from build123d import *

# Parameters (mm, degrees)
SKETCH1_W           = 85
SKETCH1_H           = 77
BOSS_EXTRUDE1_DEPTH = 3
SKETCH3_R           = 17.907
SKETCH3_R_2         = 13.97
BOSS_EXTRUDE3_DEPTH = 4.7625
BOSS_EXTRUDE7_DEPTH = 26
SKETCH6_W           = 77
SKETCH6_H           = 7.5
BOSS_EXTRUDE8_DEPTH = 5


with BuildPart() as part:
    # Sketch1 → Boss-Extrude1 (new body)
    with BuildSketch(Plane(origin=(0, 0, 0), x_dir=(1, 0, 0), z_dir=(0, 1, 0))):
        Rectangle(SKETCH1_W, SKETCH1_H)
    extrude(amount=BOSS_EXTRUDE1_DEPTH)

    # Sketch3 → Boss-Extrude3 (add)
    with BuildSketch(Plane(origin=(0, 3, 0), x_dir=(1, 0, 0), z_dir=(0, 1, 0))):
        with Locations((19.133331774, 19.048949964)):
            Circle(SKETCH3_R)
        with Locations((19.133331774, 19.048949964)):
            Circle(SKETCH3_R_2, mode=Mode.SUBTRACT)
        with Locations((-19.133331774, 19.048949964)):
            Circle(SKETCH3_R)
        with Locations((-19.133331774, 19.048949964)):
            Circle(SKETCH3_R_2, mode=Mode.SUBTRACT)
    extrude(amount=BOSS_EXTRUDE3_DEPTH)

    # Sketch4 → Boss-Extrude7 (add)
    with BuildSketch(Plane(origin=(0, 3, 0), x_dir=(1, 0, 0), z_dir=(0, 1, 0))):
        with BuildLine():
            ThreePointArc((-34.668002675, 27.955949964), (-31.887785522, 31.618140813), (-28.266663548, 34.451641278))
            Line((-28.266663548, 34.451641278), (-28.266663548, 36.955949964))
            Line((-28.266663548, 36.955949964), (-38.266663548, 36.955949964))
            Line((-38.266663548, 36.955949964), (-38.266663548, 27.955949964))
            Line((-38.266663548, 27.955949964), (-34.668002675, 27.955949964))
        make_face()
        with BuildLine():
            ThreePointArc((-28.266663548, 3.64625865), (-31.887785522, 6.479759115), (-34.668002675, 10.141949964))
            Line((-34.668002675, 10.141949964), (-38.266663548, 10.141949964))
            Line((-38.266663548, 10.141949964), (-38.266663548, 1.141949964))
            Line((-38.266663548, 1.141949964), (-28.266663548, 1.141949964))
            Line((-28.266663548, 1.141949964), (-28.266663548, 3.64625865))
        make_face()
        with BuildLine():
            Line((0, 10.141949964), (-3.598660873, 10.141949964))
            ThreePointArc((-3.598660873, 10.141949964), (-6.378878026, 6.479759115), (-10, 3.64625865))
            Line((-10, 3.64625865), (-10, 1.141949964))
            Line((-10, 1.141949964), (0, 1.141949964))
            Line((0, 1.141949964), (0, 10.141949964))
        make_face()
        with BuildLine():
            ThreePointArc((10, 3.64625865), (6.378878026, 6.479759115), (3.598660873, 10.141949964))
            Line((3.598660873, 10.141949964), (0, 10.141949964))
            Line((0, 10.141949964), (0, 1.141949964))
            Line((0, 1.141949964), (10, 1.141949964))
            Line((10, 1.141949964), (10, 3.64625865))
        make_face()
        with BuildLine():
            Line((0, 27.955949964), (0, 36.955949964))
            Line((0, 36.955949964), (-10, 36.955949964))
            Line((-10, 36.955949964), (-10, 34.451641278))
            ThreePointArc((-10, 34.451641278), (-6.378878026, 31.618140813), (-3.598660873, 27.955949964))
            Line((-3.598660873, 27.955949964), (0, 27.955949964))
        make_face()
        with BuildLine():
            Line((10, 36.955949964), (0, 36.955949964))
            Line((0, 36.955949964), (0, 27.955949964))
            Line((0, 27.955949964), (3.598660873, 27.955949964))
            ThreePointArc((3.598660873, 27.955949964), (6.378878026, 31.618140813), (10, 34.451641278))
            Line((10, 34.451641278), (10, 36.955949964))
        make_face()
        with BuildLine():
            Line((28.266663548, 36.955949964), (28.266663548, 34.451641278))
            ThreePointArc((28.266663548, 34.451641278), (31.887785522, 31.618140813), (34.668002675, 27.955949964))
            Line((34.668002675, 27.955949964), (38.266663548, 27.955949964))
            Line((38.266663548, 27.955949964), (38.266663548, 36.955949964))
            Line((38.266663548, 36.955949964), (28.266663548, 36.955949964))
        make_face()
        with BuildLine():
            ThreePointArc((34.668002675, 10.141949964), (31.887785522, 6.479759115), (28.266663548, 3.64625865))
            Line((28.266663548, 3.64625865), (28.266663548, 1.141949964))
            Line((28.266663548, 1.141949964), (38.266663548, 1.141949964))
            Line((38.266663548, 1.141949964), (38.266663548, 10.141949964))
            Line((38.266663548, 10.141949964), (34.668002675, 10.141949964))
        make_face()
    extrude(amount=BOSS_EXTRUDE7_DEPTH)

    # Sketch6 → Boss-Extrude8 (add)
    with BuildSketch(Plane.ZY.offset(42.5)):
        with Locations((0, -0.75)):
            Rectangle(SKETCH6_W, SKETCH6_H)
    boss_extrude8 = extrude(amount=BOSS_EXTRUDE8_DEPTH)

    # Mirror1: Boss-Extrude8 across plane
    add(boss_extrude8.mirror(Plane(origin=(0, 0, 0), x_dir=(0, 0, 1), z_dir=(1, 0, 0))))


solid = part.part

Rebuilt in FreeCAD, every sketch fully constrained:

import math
import FreeCAD as App
import Part
import Sketcher

V = App.Vector
Q = App.Units.Quantity

doc = App.newDocument("Part")
body = doc.addObject("PartDesign::Body", "Body")

sketch1 = body.newObject("Sketcher::SketchObject", "Sketch")
sketch1.AttachmentSupport = (doc.getObject("XZ_Plane"), [""])
sketch1.MapMode = "FlatFace"
sketch1.addGeometry([
    Part.LineSegment(V(-42, -38, 0), V(-42, 38, 0)),
    Part.LineSegment(V(-42, 38, 0), V(42, 38, 0)),
    Part.LineSegment(V(42, 38, 0), V(42, -38, 0)),
    Part.LineSegment(V(42, -38, 0), V(-42, -38, 0)),
], False)
sketch1.addConstraint([
    Sketcher.Constraint("Coincident", 0, 2, 1, 1),
    Sketcher.Constraint("Coincident", 1, 2, 2, 1),
    Sketcher.Constraint("Coincident", 2, 2, 3, 1),
    Sketcher.Constraint("Coincident", 3, 2, 0, 1),
    Sketcher.Constraint("Vertical", 0),
    Sketcher.Constraint("Horizontal", 1),
    Sketcher.Constraint("Vertical", 2),
    Sketcher.Constraint("Horizontal", 3),
    Sketcher.Constraint("Symmetric", 0, 2, 2, 2, -1, 1),
    Sketcher.Constraint("DistanceX", 1, 1, 1, 2, Q("85 mm")),
    Sketcher.Constraint("DistanceY", 0, 1, 0, 2, Q("77 mm")),
])
pad1 = body.newObject("PartDesign::Pad", "Pad")
pad1.Profile = sketch1
pad1.Length = 3
pad1.Reversed = True

sketch2 = body.newObject("Sketcher::SketchObject", "Sketch001")
sketch2.AttachmentSupport = (doc.getObject("XZ_Plane"), [""])
sketch2.MapMode = "FlatFace"
sketch2.AttachmentOffset = App.Placement(V(0, 0, -3), App.Rotation())
sketch2.addGeometry([
    Part.Circle(V(19, -19, 0), V(0, 0, 1), 18),
    Part.Circle(V(19, -19, 0), V(0, 0, 1), 14),
    Part.Circle(V(-19, -19, 0), V(0, 0, 1), 18),
    Part.Circle(V(-19, -19, 0), V(0, 0, 1), 14),
], False)
sketch2.addConstraint([
    Sketcher.Constraint("Coincident", 1, 3, 0, 3),
    Sketcher.Constraint("Coincident", 3, 3, 2, 3),
    Sketcher.Constraint("Equal", 0, 2),
    Sketcher.Constraint("Equal", 1, 3),
    Sketcher.Constraint("Symmetric", 0, 3, 2, 3, -2),
    Sketcher.Constraint("Diameter", 1, Q("27.94 mm")),
    Sketcher.Constraint("Diameter", 0, Q("35.814 mm")),
    Sketcher.Constraint("DistanceX", -1, 1, 0, 3, Q("19.133332 mm")),
    Sketcher.Constraint("DistanceY", 0, 3, -1, 1, Q("19.04895 mm")),
])
pad2 = body.newObject("PartDesign::Pad", "Pad001")
pad2.Profile = sketch2
pad2.Length = 4.7625
pad2.Reversed = True

sketch3 = body.newObject("Sketcher::SketchObject", "Sketch002")
sketch3.AttachmentSupport = (doc.getObject("XZ_Plane"), [""])
sketch3.MapMode = "FlatFace"
sketch3.AttachmentOffset = App.Placement(V(0, 0, -3), App.Rotation())
sketch3.addGeometry([
    Part.ArcOfCircle(Part.Circle(V(-19.1, -19, 0), V(0, 0, 1), 17.9), math.radians(-150), math.radians(-121)),
    Part.LineSegment(V(-28.3, -34.5, 0), V(-28.3, -37, 0)),
    Part.LineSegment(V(-28.3, -37, 0), V(-38.3, -37, 0)),
    Part.LineSegment(V(-38.3, -37, 0), V(-38.3, -28, 0)),
    Part.LineSegment(V(-38.3, -28, 0), V(-34.7, -28, 0)),
    Part.ArcOfCircle(Part.Circle(V(-19.1, -19, 0), V(0, 0, 1), 17.9), math.radians(121), math.radians(150)),
    Part.LineSegment(V(-34.7, -10.1, 0), V(-38.3, -10.1, 0)),
    Part.LineSegment(V(-38.3, -10.1, 0), V(-38.3, -1.1, 0)),
    Part.LineSegment(V(-38.3, -1.1, 0), V(-28.3, -1.1, 0)),
    Part.LineSegment(V(-28.3, -1.1, 0), V(-28.3, -3.6, 0)),
    Part.ArcOfCircle(Part.Circle(V(-19.1, -19, 0), V(0, 0, 1), 17.9), math.radians(30), math.radians(59)),
    Part.LineSegment(V(-10, -3.6, 0), V(-10, -1.1, 0)),
    Part.LineSegment(V(-10, -1.1, 0), V(10, -1.1, 0)),
    Part.LineSegment(V(10, -1.1, 0), V(10, -3.6, 0)),
    Part.ArcOfCircle(Part.Circle(V(19.1, -19, 0), V(0, 0, 1), 17.9), math.radians(121), math.radians(150)),
    Part.LineSegment(V(3.6, -10.1, 0), V(-3.6, -10.1, 0)),
    Part.LineSegment(V(-10, -37, 0), V(-10, -34.5, 0)),
    Part.ArcOfCircle(Part.Circle(V(-19.1, -19, 0), V(0, 0, 1), 17.9), math.radians(-59), math.radians(-30)),
    Part.LineSegment(V(-3.6, -28, 0), V(3.6, -28, 0)),
    Part.ArcOfCircle(Part.Circle(V(19.1, -19, 0), V(0, 0, 1), 17.9), math.radians(-150), math.radians(-121)),
    Part.LineSegment(V(10, -34.5, 0), V(10, -37, 0)),
    Part.LineSegment(V(10, -37, 0), V(-10, -37, 0)),
    Part.LineSegment(V(28.3, -37, 0), V(28.3, -34.5, 0)),
    Part.ArcOfCircle(Part.Circle(V(19.1, -19, 0), V(0, 0, 1), 17.9), math.radians(-59), math.radians(-30)),
    Part.LineSegment(V(34.7, -28, 0), V(38.3, -28, 0)),
    Part.LineSegment(V(38.3, -28, 0), V(38.3, -37, 0)),
    Part.LineSegment(V(38.3, -37, 0), V(28.3, -37, 0)),
    Part.ArcOfCircle(Part.Circle(V(19.1, -19, 0), V(0, 0, 1), 17.9), math.radians(30), math.radians(59)),
    Part.LineSegment(V(28.3, -3.6, 0), V(28.3, -1.1, 0)),
    Part.LineSegment(V(28.3, -1.1, 0), V(38.3, -1.1, 0)),
    Part.LineSegment(V(38.3, -1.1, 0), V(38.3, -10.1, 0)),
    Part.LineSegment(V(38.3, -10.1, 0), V(34.7, -10.1, 0)),
], False)
sketch3.addConstraint([
    Sketcher.Constraint("Coincident", 0, 2, 1, 1),
    Sketcher.Constraint("Coincident", 1, 2, 2, 1),
    Sketcher.Constraint("Coincident", 2, 2, 3, 1),
    Sketcher.Constraint("Coincident", 3, 2, 4, 1),
    Sketcher.Constraint("Coincident", 4, 2, 0, 1),
    Sketcher.Constraint("Coincident", 5, 2, 6, 1),
    Sketcher.Constraint("Coincident", 6, 2, 7, 1),
    Sketcher.Constraint("Coincident", 7, 2, 8, 1),
    Sketcher.Constraint("Coincident", 8, 2, 9, 1),
    Sketcher.Constraint("Coincident", 9, 2, 5, 1),
    Sketcher.Constraint("Coincident", 10, 2, 11, 1),
    Sketcher.Constraint("Coincident", 11, 2, 12, 1),
    Sketcher.Constraint("Coincident", 12, 2, 13, 1),
    Sketcher.Constraint("Coincident", 13, 2, 14, 1),
    Sketcher.Constraint("Coincident", 14, 2, 15, 1),
    Sketcher.Constraint("Coincident", 15, 2, 10, 1),
    Sketcher.Constraint("Coincident", 16, 2, 17, 1),
    Sketcher.Constraint("Coincident", 17, 2, 18, 1),
    Sketcher.Constraint("Coincident", 18, 2, 19, 1),
    Sketcher.Constraint("Coincident", 19, 2, 20, 1),
    Sketcher.Constraint("Coincident", 20, 2, 21, 1),
    Sketcher.Constraint("Coincident", 21, 2, 16, 1),
    Sketcher.Constraint("Coincident", 22, 2, 23, 1),
    Sketcher.Constraint("Coincident", 23, 2, 24, 1),
    Sketcher.Constraint("Coincident", 24, 2, 25, 1),
    Sketcher.Constraint("Coincident", 25, 2, 26, 1),
    Sketcher.Constraint("Coincident", 26, 2, 22, 1),
    Sketcher.Constraint("Coincident", 27, 2, 28, 1),
    Sketcher.Constraint("Coincident", 28, 2, 29, 1),
    Sketcher.Constraint("Coincident", 29, 2, 30, 1),
    Sketcher.Constraint("Coincident", 30, 2, 31, 1),
    Sketcher.Constraint("Coincident", 31, 2, 27, 1),
    Sketcher.Constraint("Vertical", 1),
    Sketcher.Constraint("Horizontal", 2),
    Sketcher.Constraint("Vertical", 3),
    Sketcher.Constraint("Horizontal", 4),
    Sketcher.Constraint("Horizontal", 6),
    Sketcher.Constraint("Vertical", 7),
    Sketcher.Constraint("Horizontal", 8),
    Sketcher.Constraint("Vertical", 9),
    Sketcher.Constraint("Vertical", 11),
    Sketcher.Constraint("Horizontal", 12),
    Sketcher.Constraint("Vertical", 13),
    Sketcher.Constraint("Horizontal", 15),
    Sketcher.Constraint("Vertical", 16),
    Sketcher.Constraint("Horizontal", 18),
    Sketcher.Constraint("Vertical", 20),
    Sketcher.Constraint("Horizontal", 21),
    Sketcher.Constraint("Vertical", 22),
    Sketcher.Constraint("Horizontal", 24),
    Sketcher.Constraint("Vertical", 25),
    Sketcher.Constraint("Horizontal", 26),
    Sketcher.Constraint("Vertical", 28),
    Sketcher.Constraint("Horizontal", 29),
    Sketcher.Constraint("Vertical", 30),
    Sketcher.Constraint("Horizontal", 31),
    Sketcher.Constraint("Coincident", 5, 3, 0, 3),
    Sketcher.Constraint("Coincident", 10, 3, 0, 3),
    Sketcher.Constraint("Coincident", 17, 3, 0, 3),
    Sketcher.Constraint("Coincident", 19, 3, 14, 3),
    Sketcher.Constraint("Coincident", 23, 3, 14, 3),
    Sketcher.Constraint("Coincident", 27, 3, 14, 3),
    Sketcher.Constraint("Equal", 0, 5),
    Sketcher.Constraint("Equal", 5, 10),
    Sketcher.Constraint("Equal", 10, 14),
    Sketcher.Constraint("Equal", 14, 17),
    Sketcher.Constraint("Equal", 17, 19),
    Sketcher.Constraint("Equal", 19, 23),
    Sketcher.Constraint("Equal", 23, 27),
    Sketcher.Constraint("Symmetric", 0, 3, 14, 3, -2),
    Sketcher.Constraint("Symmetric", 3, 2, 24, 2, -2),
    Sketcher.Constraint("Symmetric", 1, 2, 26, 2, -2),
    Sketcher.Constraint("Symmetric", 8, 2, 28, 2, -2),
    Sketcher.Constraint("Symmetric", 6, 2, 30, 2, -2),
    Sketcher.Constraint("Horizontal", 9, 2, 10, 2),
    Sketcher.Constraint("Horizontal", 8, 2, 11, 2),
    Sketcher.Constraint("Horizontal", 10, 2, 13, 2),
    Sketcher.Constraint("Horizontal", 6, 2, 14, 2),
    Sketcher.Constraint("Horizontal", 0, 2, 16, 2),
    Sketcher.Constraint("Horizontal", 4, 2, 17, 2),
    Sketcher.Constraint("Horizontal", 16, 2, 19, 2),
    Sketcher.Constraint("Horizontal", 2, 2, 20, 2),
    Sketcher.Constraint("Vertical", 4, 2, 5, 2),
    Sketcher.Constraint("Vertical", 3, 2, 6, 2),
    Sketcher.Constraint("Vertical", 1, 2, 8, 2),
    Sketcher.Constraint("Equal", 3, 7),
    Sketcher.Constraint("DistanceX", 2, 2, 2, 1, Q("10 mm")),
    Sketcher.Constraint("DistanceX", 12, 1, 12, 2, Q("20 mm")),
    Sketcher.Constraint("DistanceY", 3, 1, 3, 2, Q("9 mm")),
    Sketcher.Constraint("Radius", 0, Q("17.907 mm")),
    Sketcher.Constraint("DistanceY", 1, 2, 0, 3, Q("17.907 mm")),
    Sketcher.Constraint("DistanceX", 4, 1, 4, 2, Q("3.598661 mm")),
    Sketcher.Constraint("DistanceY", 0, 3, -1, 1, Q("19.04895 mm")),
])
pad3 = body.newObject("PartDesign::Pad", "Pad002")
pad3.Profile = sketch3
pad3.Length = 26
pad3.Reversed = True

sketch4 = body.newObject("Sketcher::SketchObject", "Sketch003")
sketch4.AttachmentSupport = (doc.getObject("YZ_Plane"), [""])
sketch4.MapMode = "FlatFace"
sketch4.AttachmentOffset = App.Placement(V(0, 0, -42.5), App.Rotation())
sketch4.addGeometry([
    Part.LineSegment(V(3, -38, 0), V(-4, -38, 0)),
    Part.LineSegment(V(-4, -38, 0), V(-4, 38, 0)),
    Part.LineSegment(V(-4, 38, 0), V(3, 38, 0)),
    Part.LineSegment(V(3, 38, 0), V(3, -38, 0)),
], False)
sketch4.addConstraint([
    Sketcher.Constraint("Coincident", 0, 2, 1, 1),
    Sketcher.Constraint("Coincident", 1, 2, 2, 1),
    Sketcher.Constraint("Coincident", 2, 2, 3, 1),
    Sketcher.Constraint("Coincident", 3, 2, 0, 1),
    Sketcher.Constraint("Horizontal", 0),
    Sketcher.Constraint("Vertical", 1),
    Sketcher.Constraint("Horizontal", 2),
    Sketcher.Constraint("Vertical", 3),
    Sketcher.Constraint("DistanceY", 1, 1, 1, 2, Q("77 mm")),
    Sketcher.Constraint("DistanceX", 0, 2, 0, 1, Q("7.5 mm")),
    Sketcher.Constraint("DistanceX", -1, 1, 2, 2, Q("3 mm")),
    Sketcher.Constraint("DistanceY", 0, 2, -1, 1, Q("38.5 mm")),
])
pad4 = body.newObject("PartDesign::Pad", "Pad003")
pad4.Profile = sketch4
pad4.Length = 5
pad4.Reversed = True
doc.recompute()

mirrored = body.newObject("PartDesign::Mirrored", "Mirrored")
mirrored.Originals = [pad4]
mirrored.MirrorPlane = (doc.getObject("YZ_Plane"), [""])
body.Tip = mirrored

doc.recompute()
